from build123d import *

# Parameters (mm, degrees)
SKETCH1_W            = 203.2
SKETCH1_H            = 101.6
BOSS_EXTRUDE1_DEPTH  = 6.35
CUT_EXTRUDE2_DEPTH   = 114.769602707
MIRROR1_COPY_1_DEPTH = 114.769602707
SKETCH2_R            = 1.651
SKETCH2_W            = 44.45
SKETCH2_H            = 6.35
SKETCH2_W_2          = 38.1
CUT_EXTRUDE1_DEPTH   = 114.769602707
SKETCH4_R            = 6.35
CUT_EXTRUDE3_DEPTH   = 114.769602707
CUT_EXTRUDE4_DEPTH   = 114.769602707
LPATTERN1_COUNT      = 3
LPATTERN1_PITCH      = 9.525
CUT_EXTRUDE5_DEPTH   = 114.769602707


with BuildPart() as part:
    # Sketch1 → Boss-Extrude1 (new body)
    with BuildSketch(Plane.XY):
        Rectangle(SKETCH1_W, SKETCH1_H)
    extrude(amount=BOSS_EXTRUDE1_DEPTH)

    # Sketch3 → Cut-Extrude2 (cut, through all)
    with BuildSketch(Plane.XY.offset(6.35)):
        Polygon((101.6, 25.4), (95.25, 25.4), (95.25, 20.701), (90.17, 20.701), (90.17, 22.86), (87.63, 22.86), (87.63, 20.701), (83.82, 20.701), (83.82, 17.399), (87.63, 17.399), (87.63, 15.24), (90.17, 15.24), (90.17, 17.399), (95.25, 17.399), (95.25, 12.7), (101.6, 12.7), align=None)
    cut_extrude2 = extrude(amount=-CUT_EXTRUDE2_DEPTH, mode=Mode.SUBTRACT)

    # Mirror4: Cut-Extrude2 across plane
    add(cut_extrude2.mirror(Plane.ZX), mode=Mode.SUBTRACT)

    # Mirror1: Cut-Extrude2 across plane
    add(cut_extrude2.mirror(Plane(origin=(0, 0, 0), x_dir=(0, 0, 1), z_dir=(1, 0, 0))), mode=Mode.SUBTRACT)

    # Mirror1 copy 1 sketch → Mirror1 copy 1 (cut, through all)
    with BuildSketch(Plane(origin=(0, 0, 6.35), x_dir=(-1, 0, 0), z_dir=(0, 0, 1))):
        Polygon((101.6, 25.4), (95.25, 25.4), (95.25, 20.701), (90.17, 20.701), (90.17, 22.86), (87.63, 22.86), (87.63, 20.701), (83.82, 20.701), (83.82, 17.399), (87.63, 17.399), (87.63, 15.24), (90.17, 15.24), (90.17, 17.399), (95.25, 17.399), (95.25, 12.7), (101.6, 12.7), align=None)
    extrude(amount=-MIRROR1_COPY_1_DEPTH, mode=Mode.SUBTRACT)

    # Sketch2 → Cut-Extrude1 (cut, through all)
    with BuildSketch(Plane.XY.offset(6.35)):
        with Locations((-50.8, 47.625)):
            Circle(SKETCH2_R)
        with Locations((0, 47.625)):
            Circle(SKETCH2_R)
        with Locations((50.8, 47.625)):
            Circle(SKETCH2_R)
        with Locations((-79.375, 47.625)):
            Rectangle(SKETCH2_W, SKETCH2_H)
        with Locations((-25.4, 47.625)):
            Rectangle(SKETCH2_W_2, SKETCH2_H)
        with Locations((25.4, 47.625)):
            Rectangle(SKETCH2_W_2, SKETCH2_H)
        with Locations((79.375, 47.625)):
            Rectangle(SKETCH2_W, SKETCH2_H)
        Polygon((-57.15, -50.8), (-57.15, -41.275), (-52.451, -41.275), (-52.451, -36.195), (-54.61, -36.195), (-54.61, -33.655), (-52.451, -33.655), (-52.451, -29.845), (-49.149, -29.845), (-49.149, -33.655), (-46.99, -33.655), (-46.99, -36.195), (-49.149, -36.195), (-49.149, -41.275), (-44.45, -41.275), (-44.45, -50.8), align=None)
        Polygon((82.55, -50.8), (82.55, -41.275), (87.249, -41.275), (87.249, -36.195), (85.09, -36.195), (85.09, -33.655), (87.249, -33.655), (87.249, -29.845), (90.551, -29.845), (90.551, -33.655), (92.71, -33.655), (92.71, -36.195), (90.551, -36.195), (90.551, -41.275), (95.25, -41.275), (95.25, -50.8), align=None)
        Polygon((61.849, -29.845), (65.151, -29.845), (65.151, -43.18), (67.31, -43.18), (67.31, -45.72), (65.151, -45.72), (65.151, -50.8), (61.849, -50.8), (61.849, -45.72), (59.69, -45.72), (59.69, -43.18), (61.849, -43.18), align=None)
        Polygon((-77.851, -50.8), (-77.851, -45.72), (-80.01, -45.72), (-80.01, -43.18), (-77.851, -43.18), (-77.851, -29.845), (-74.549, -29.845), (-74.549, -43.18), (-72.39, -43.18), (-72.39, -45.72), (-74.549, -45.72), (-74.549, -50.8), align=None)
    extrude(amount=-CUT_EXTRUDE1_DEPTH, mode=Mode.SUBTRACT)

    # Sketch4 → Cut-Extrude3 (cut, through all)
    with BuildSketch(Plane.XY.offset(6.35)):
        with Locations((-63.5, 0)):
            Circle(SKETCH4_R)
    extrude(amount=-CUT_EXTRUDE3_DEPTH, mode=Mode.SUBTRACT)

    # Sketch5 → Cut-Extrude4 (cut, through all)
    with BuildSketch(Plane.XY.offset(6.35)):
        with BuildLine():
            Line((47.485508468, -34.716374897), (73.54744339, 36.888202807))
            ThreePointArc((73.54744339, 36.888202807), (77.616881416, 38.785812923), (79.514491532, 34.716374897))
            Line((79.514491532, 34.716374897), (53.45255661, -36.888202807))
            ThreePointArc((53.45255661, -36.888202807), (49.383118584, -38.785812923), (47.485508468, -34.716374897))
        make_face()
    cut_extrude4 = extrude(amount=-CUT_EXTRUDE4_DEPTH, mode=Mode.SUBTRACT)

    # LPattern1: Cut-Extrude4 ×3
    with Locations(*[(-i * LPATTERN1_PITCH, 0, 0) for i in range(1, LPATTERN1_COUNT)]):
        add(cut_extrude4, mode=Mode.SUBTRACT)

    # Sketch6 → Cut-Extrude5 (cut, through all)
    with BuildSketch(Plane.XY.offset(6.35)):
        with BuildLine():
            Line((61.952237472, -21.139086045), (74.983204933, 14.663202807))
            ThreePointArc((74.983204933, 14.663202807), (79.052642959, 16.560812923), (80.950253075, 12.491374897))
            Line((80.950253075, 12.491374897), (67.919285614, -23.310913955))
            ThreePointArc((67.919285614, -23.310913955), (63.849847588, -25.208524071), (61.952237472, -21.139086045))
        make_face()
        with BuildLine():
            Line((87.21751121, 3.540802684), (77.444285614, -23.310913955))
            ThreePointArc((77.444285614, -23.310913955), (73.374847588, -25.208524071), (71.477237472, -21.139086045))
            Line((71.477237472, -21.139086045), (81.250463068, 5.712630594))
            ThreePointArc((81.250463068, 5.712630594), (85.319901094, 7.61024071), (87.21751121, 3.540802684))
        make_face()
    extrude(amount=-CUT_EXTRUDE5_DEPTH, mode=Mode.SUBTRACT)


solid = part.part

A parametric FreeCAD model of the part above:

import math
import FreeCAD as App
import Part
import Sketcher

V = App.Vector
Q = App.Units.Quantity


def add_polygon(sketch, points):
    """Adds a closed chain of lines whose ends are joined by coincident constraints."""
    first, n = sketch.GeometryCount, len(points)
    for a, b in zip(points, points[1:] + points[:1]):
        sketch.addGeometry(Part.LineSegment(App.Vector(*a, 0), App.Vector(*b, 0)), False)
    for i in range(n):
        sketch.addConstraint(Sketcher.Constraint("Coincident", first + i, 2, first + (i + 1) % n, 1))

doc = App.newDocument("Part")
params = doc.addObject("Spreadsheet::Sheet", "Params")
for row, (alias, value) in enumerate([
    ("sketch1_width", "8 in"),
    ("sketch1_height", "4 in"),
    ("pad1_length", "0.25 in"),
    ("sketch2_width", "0.2 in"),
    ("sketch2_width2", "0.1 in"),
    ("sketch2_height", "0.5 in"),
    ("sketch2_width3", "0.25 in"),
    ("sketch2_width4", "0.15 in"),
    ("sketch3_width", "0.2 in"),
    ("sketch3_width2", "0.1 in"),
    ("sketch3_height", "0.5 in"),
    ("sketch3_width3", "0.25 in"),
    ("sketch3_width4", "0.15 in"),
    ("sketch4_diameter", "0.13 in"),
    ("sketch4_width", "1.5 in"),
    ("sketch4_width2", "0.5 in"),
    ("sketch4_height", "0.2 in"),
    ("sketch4_height2", "0.1 in"),
    ("sketch5_diameter", "0.5 in"),
    ("sketch6_length", "3 in"),
    ("sketch6_radius", "0.125 in"),
    ("linearpattern_pitch", "0.375 in"),
    ("sketch7_radius", "0.125 in"),
    ("sketch7_length", "1.5 in"),
    ("sketch7_length2", "1.125 in"),
], start=1):
    params.set(f"A{row}", alias)
    params.set(f"B{row}", "=" + value)
    params.setAlias(f"B{row}", alias)

body = doc.addObject("PartDesign::Body", "Body")

# Sketch on XY plane
sketch1 = body.newObject("Sketcher::SketchObject", "Sketch")
sketch1.AttachmentSupport = (doc.getObject("XY_Plane"), [""])
sketch1.MapMode = "FlatFace"
add_polygon(sketch1, [(-101.6, 50.8), (-101.6, -50.8), (101.6, -50.8), (101.6, 50.8)])  # lines 0-3
sketch1.addConstraint([
    Sketcher.Constraint("Vertical", 0),
    Sketcher.Constraint("Horizontal", 1),
    Sketcher.Constraint("Vertical", 2),
    Sketcher.Constraint("Horizontal", 3),
    Sketcher.Constraint("Symmetric", 0, 2, 2, 2, -1, 1),
    Sketcher.Constraint("DistanceX", 1, 1, 1, 2, Q("8 in")),
    Sketcher.Constraint("DistanceY", 0, 2, 0, 1, Q("4 in")),
])
sketch1.setExpression("Constraints[9]", "Params.sketch1_width")
sketch1.setExpression("Constraints[10]", "Params.sketch1_height")
pad1 = body.newObject("PartDesign::Pad", "Pad")
pad1.Profile = sketch1
pad1.setExpression("Length", "Params.pad1_length")

# Sketch on XY plane
sketch2 = body.newObject("Sketcher::SketchObject", "Sketch001")
sketch2.AttachmentSupport = (doc.getObject("XY_Plane"), [""])
sketch2.MapMode = "FlatFace"
sketch2.AttachmentOffset = App.Placement(V(0, 0, 0.25 * 25.4), App.Rotation())
add_polygon(sketch2, [(101.6, 25.4), (95.25, 25.4), (95.25, 20.701), (90.17, 20.701), (90.17, 22.86), (87.63, 22.86), (87.63, 20.701), (83.82, 20.701), (83.82, 17.399), (87.63, 17.399), (87.63, 15.24), (90.17, 15.24), (90.17, 17.399), (95.25, 17.399), (95.25, 12.7), (101.6, 12.7)])  # lines 0-15
sketch2.addConstraint([
    Sketcher.Constraint("Horizontal", 0),
    Sketcher.Constraint("Vertical", 1),
    Sketcher.Constraint("Horizontal", 2),
    Sketcher.Constraint("Vertical", 3),
    Sketcher.Constraint("Horizontal", 4),
    Sketcher.Constraint("Vertical", 5),
    Sketcher.Constraint("Horizontal", 6),
    Sketcher.Constraint("Vertical", 7),
    Sketcher.Constraint("Horizontal", 8),
    Sketcher.Constraint("Vertical", 9),
    Sketcher.Constraint("Horizontal", 10),
    Sketcher.Constraint("Vertical", 11),
    Sketcher.Constraint("Horizontal", 12),
    Sketcher.Constraint("Vertical", 13),
    Sketcher.Constraint("Horizontal", 14),
    Sketcher.Constraint("Vertical", 15),
    Sketcher.Constraint("Horizontal", 2, 2, 5, 2),
    Sketcher.Constraint("Horizontal", 8, 2, 11, 2),
    Sketcher.Constraint("Vertical", 5, 2, 8, 2),
    Sketcher.Constraint("Vertical", 3, 2, 10, 2),
    Sketcher.Constraint("Vertical", 1, 2, 12, 2),
    Sketcher.Constraint("Equal", 5, 9),
    Sketcher.Constraint("Equal", 1, 13),
    Sketcher.Constraint("DistanceX", 2, 2, 2, 1, Q("0.2 in")),
    Sketcher.Constraint("DistanceX", 4, 2, 4, 1, Q("0.1 in")),
    Sketcher.Constraint("DistanceY", 15, 1, 15, 2, Q("0.5 in")),
    Sketcher.Constraint("DistanceY", -1, 1, 0, 2, Q("1 in")),
    Sketcher.Constraint("DistanceX", -1, 1, 14, 2, Q("4 in")),
    Sketcher.Constraint("DistanceX", 0, 2, 0, 1, Q("0.25 in")),
    Sketcher.Constraint("DistanceX", 6, 2, 6, 1, Q("0.15 in")),
    Sketcher.Constraint("DistanceY", 7, 2, 7, 1, Q("0.13 in")),
    Sketcher.Constraint("DistanceY", -1, 1, 3, 2, Q("0.9 in")),
])
sketch2.setExpression("Constraints[39]", "Params.sketch2_width")
sketch2.setExpression("Constraints[40]", "Params.sketch2_width2")
sketch2.setExpression("Constraints[41]", "Params.sketch2_height")
sketch2.setExpression("Constraints[44]", "Params.sketch2_width3")
sketch2.setExpression("Constraints[45]", "Params.sketch2_width4")
pocket1 = body.newObject("PartDesign::Pocket", "Pocket")
pocket1.Profile = sketch2
pocket1.Type = "ThroughAll"
doc.recompute()

mirrored = body.newObject("PartDesign::Mirrored", "Mirrored")
mirrored.Originals = [pocket1]
mirrored.MirrorPlane = (doc.getObject("XZ_Plane"), [""])
body.Tip = mirrored
doc.recompute()

mirrored2 = body.newObject("PartDesign::Mirrored", "Mirrored001")
mirrored2.Originals = [pocket1]
mirrored2.MirrorPlane = (doc.getObject("YZ_Plane"), [""])
body.Tip = mirrored2

# Sketch on XY plane
sketch3 = body.newObject("Sketcher::SketchObject", "Sketch002")
sketch3.AttachmentSupport = (doc.getObject("XY_Plane"), [""])
sketch3.MapMode = "FlatFace"
sketch3.AttachmentOffset = App.Placement(V(0, 0, 0.25 * 25.4), App.Rotation())
add_polygon(sketch3, [(-101.6, -25.4), (-95.25, -25.4), (-95.25, -20.701), (-90.17, -20.701), (-90.17, -22.86), (-87.63, -22.86), (-87.63, -20.701), (-83.82, -20.701), (-83.82, -17.399), (-87.63, -17.399), (-87.63, -15.24), (-90.17, -15.24), (-90.17, -17.399), (-95.25, -17.399), (-95.25, -12.7), (-101.6, -12.7)])  # lines 0-15
sketch3.addConstraint([
    Sketcher.Constraint("Horizontal", 0),
    Sketcher.Constraint("Vertical", 1),
    Sketcher.Constraint("Horizontal", 2),
    Sketcher.Constraint("Vertical", 3),
    Sketcher.Constraint("Horizontal", 4),
    Sketcher.Constraint("Vertical", 5),
    Sketcher.Constraint("Horizontal", 6),
    Sketcher.Constraint("Vertical", 7),
    Sketcher.Constraint("Horizontal", 8),
    Sketcher.Constraint("Vertical", 9),
    Sketcher.Constraint("Horizontal", 10),
    Sketcher.Constraint("Vertical", 11),
    Sketcher.Constraint("Horizontal", 12),
    Sketcher.Constraint("Vertical", 13),
    Sketcher.Constraint("Horizontal", 14),
    Sketcher.Constraint("Vertical", 15),
    Sketcher.Constraint("Horizontal", 2, 2, 5, 2),
    Sketcher.Constraint("Horizontal", 8, 2, 11, 2),
    Sketcher.Constraint("Vertical", 5, 2, 8, 2),
    Sketcher.Constraint("Vertical", 3, 2, 10, 2),
    Sketcher.Constraint("Vertical", 1, 2, 12, 2),
    Sketcher.Constraint("Equal", 5, 9),
    Sketcher.Constraint("Equal", 1, 13),
    Sketcher.Constraint("DistanceX", 2, 1, 2, 2, Q("0.2 in")),
    Sketcher.Constraint("DistanceX", 4, 1, 4, 2, Q("0.1 in")),
    Sketcher.Constraint("DistanceY", 15, 2, 15, 1, Q("0.5 in")),
    Sketcher.Constraint("DistanceY", 0, 2, -1, 1, Q("1 in")),
    Sketcher.Constraint("DistanceX", 14, 2, -1, 1, Q("4 in")),
    Sketcher.Constraint("DistanceX", 0, 1, 0, 2, Q("0.25 in")),
    Sketcher.Constraint("DistanceX", 6, 1, 6, 2, Q("0.15 in")),
    Sketcher.Constraint("DistanceY", 7, 1, 7, 2, Q("0.13 in")),
    Sketcher.Constraint("DistanceY", 3, 2, -1, 1, Q("0.9 in")),
])
sketch3.setExpression("Constraints[39]", "Params.sketch3_width")
sketch3.setExpression("Constraints[40]", "Params.sketch3_width2")
sketch3.setExpression("Constraints[41]", "Params.sketch3_height")
sketch3.setExpression("Constraints[44]", "Params.sketch3_width3")
sketch3.setExpression("Constraints[45]", "Params.sketch3_width4")
pocket2 = body.newObject("PartDesign::Pocket", "Pocket001")
pocket2.Profile = sketch3
pocket2.Type = "ThroughAll"

# Sketch on XY plane
sketch4 = body.newObject("Sketcher::SketchObject", "Sketch003")
sketch4.AttachmentSupport = (doc.getObject("XY_Plane"), [""])
sketch4.MapMode = "FlatFace"
sketch4.AttachmentOffset = App.Placement(V(0, 0, 0.25 * 25.4), App.Rotation())
sketch4.addGeometry(Part.Circle(V(-50.8, 47.625, 0), V(0, 0, 1), 1.651), False)  # 0
sketch4.addGeometry(Part.Circle(V(0, 47.625, 0), V(0, 0, 1), 1.651), False)  # 1
sketch4.addGeometry(Part.Circle(V(50.8, 47.625, 0), V(0, 0, 1), 1.651), False)  # 2
add_polygon(sketch4, [(-101.6, 50.8), (-101.6, 44.45), (-57.15, 44.45), (-57.15, 50.8)])  # lines 3-6
add_polygon(sketch4, [(-44.45, 50.8), (-44.45, 44.45), (-6.35, 44.45), (-6.35, 50.8)])  # lines 7-10
add_polygon(sketch4, [(6.35, 50.8), (6.35, 44.45), (44.45, 44.45), (44.45, 50.8)])  # lines 11-14
add_polygon(sketch4, [(57.15, 50.8), (57.15, 44.45), (101.6, 44.45), (101.6, 50.8)])  # lines 15-18
add_polygon(sketch4, [(-57.15, -41.275), (-57.15, -50.8), (-44.45, -50.8), (-44.45, -41.275), (-49.149, -41.275), (-49.149, -36.195), (-46.99, -36.195), (-46.99, -33.655), (-49.149, -33.655), (-49.149, -29.845), (-52.451, -29.845), (-52.451, -33.655), (-54.61, -33.655), (-54.61, -36.195), (-52.451, -36.195), (-52.451, -41.275)])  # lines 19-34
add_polygon(sketch4, [(82.55, -41.275), (82.55, -50.8), (95.25, -50.8), (95.25, -41.275), (90.551, -41.275), (90.551, -36.195), (92.71, -36.195), (92.71, -33.655), (90.551, -33.655), (90.551, -29.845), (87.249, -29.845), (87.249, -33.655), (85.09, -33.655), (85.09, -36.195), (87.249, -36.195), (87.249, -41.275)])  # lines 35-50
add_polygon(sketch4, [(65.151, -29.845), (61.849, -29.845), (61.849, -43.18), (59.69, -43.18), (59.69, -45.72), (61.849, -45.72), (61.849, -50.8), (65.151, -50.8), (65.151, -45.72), (67.31, -45.72), (67.31, -43.18), (65.151, -43.18)])  # lines 51-62
add_polygon(sketch4, [(-77.851, -45.72), (-77.851, -50.8), (-74.549, -50.8), (-74.549, -45.72), (-72.39, -45.72), (-72.39, -43.18), (-74.549, -43.18), (-74.549, -29.845), (-77.851, -29.845), (-77.851, -43.18), (-80.01, -43.18), (-80.01, -45.72)])  # lines 63-74
sketch4.addConstraint([
    Sketcher.Constraint("Vertical", 3),
    Sketcher.Constraint("Horizontal", 4),
    Sketcher.Constraint("Vertical", 5),
    Sketcher.Constraint("Horizontal", 6),
    Sketcher.Constraint("Vertical", 7),
    Sketcher.Constraint("Horizontal", 8),
    Sketcher.Constraint("Vertical", 9),
    Sketcher.Constraint("Horizontal", 10),
    Sketcher.Constraint("Vertical", 11),
    Sketcher.Constraint("Horizontal", 12),
    Sketcher.Constraint("Vertical", 13),
    Sketcher.Constraint("Horizontal", 14),
    Sketcher.Constraint("Vertical", 15),
    Sketcher.Constraint("Horizontal", 16),
    Sketcher.Constraint("Vertical", 17),
    Sketcher.Constraint("Horizontal", 18),
    Sketcher.Constraint("Vertical", 19),
    Sketcher.Constraint("Horizontal", 20),
    Sketcher.Constraint("Vertical", 21),
    Sketcher.Constraint("Horizontal", 22),
    Sketcher.Constraint("Vertical", 23),
    Sketcher.Constraint("Horizontal", 24),
    Sketcher.Constraint("Vertical", 25),
    Sketcher.Constraint("Horizontal", 26),
    Sketcher.Constraint("Vertical", 27),
    Sketcher.Constraint("Horizontal", 28),
    Sketcher.Constraint("Vertical", 29),
    Sketcher.Constraint("Horizontal", 30),
    Sketcher.Constraint("Vertical", 31),
    Sketcher.Constraint("Horizontal", 32),
    Sketcher.Constraint("Vertical", 33),
    Sketcher.Constraint("Horizontal", 34),
    Sketcher.Constraint("Vertical", 35),
    Sketcher.Constraint("Horizontal", 36),
    Sketcher.Constraint("Vertical", 37),
    Sketcher.Constraint("Horizontal", 38),
    Sketcher.Constraint("Vertical", 39),
    Sketcher.Constraint("Horizontal", 40),
    Sketcher.Constraint("Vertical", 41),
    Sketcher.Constraint("Horizontal", 42),
    Sketcher.Constraint("Vertical", 43),
    Sketcher.Constraint("Horizontal", 44),
    Sketcher.Constraint("Vertical", 45),
    Sketcher.Constraint("Horizontal", 46),
    Sketcher.Constraint("Vertical", 47),
    Sketcher.Constraint("Horizontal", 48),
    Sketcher.Constraint("Vertical", 49),
    Sketcher.Constraint("Horizontal", 50),
    Sketcher.Constraint("Horizontal", 51),
    Sketcher.Constraint("Vertical", 52),
    Sketcher.Constraint("Horizontal", 53),
    Sketcher.Constraint("Vertical", 54),
    Sketcher.Constraint("Horizontal", 55),
    Sketcher.Constraint("Vertical", 56),
    Sketcher.Constraint("Horizontal", 57),
    Sketcher.Constraint("Vertical", 58),
    Sketcher.Constraint("Horizontal", 59),
    Sketcher.Constraint("Vertical", 60),
    Sketcher.Constraint("Horizontal", 61),
    Sketcher.Constraint("Vertical", 62),
    Sketcher.Constraint("Vertical", 63),
    Sketcher.Constraint("Horizontal", 64),
    Sketcher.Constraint("Vertical", 65),
    Sketcher.Constraint("Horizontal", 66),
    Sketcher.Constraint("Vertical", 67),
    Sketcher.Constraint("Horizontal", 68),
    Sketcher.Constraint("Vertical", 69),
    Sketcher.Constraint("Horizontal", 70),
    Sketcher.Constraint("Vertical", 71),
    Sketcher.Constraint("Horizontal", 72),
    Sketcher.Constraint("Vertical", 73),
    Sketcher.Constraint("Horizontal", 74),
    Sketcher.Constraint("Equal", 0, 1),
    Sketcher.Constraint("Equal", 1, 2),
    Sketcher.Constraint("Symmetric", 18, 2, 19, 2, -1, 1),
    Sketcher.Constraint("Symmetric", 13, 2, 20, 2, -1, 1),
    Sketcher.Constraint("Symmetric", 0, 3, 2, 3, -2),
    Sketcher.Constraint("Symmetric", 8, 2, 11, 2, -2),
    Sketcher.Constraint("Symmetric", 10, 2, 13, 2, -2),
    Sketcher.Constraint("Symmetric", 4, 2, 15, 2, -2),
    Sketcher.Constraint("Symmetric", 6, 2, 17, 2, -2),
    Sketcher.Constraint("PointOnObject", 1, 3, -2),
    Sketcher.Constraint("Horizontal", 0, 3, 1, 3),
    Sketcher.Constraint("Horizontal", 4, 2, 7, 2),
    Sketcher.Constraint("Horizontal", 26, 2, 29, 2),
    Sketcher.Constraint("Horizontal", 24, 2, 31, 2),
    Sketcher.Constraint("Horizontal", 22, 2, 33, 2),
    Sketcher.Constraint("Horizontal", 20, 2, 35, 2),
    Sketcher.Constraint("Horizontal", 34, 2, 37, 2),
    Sketcher.Constraint("Horizontal", 32, 2, 39, 2),
    Sketcher.Constraint("Horizontal", 30, 2, 41, 2),
    Sketcher.Constraint("Horizontal", 28, 2, 43, 2),
    Sketcher.Constraint("Horizontal", 42, 2, 45, 2),
    Sketcher.Constraint("Horizontal", 40, 2, 47, 2),
    Sketcher.Constraint("Horizontal", 38, 2, 49, 2),
    Sketcher.Constraint("Horizontal", 44, 2, 51, 2),
    Sketcher.Constraint("Horizontal", 36, 2, 56, 2),
    Sketcher.Constraint("Horizontal", 55, 2, 58, 2),
    Sketcher.Constraint("Horizontal", 53, 2, 60, 2),
    Sketcher.Constraint("Horizontal", 57, 2, 63, 2),
    Sketcher.Constraint("Horizontal", 59, 2, 65, 2),
    Sketcher.Constraint("Horizontal", 61, 2, 67, 2),
    Sketcher.Constraint("Horizontal", 62, 2, 69, 2),
    Sketcher.Constraint("Horizontal", 68, 2, 71, 2),
    Sketcher.Constraint("Horizontal", 66, 2, 73, 2),
    Sketcher.Constraint("Vertical", 23, 2, 26, 2),
    Sketcher.Constraint("Vertical", 29, 2, 32, 2),
    Sketcher.Constraint("Vertical", 39, 2, 42, 2),
    Sketcher.Constraint("Vertical", 45, 2, 48, 2),
    Sketcher.Constraint("Vertical", 52, 2, 55, 2),
    Sketcher.Constraint("Vertical", 58, 2, 61, 2),
    Sketcher.Constraint("Vertical", 65, 2, 68, 2),
    Sketcher.Constraint("Vertical", 63, 2, 70, 2),
    Sketcher.Constraint("Equal", 26, 30),
    Sketcher.Constraint("Equal", 22, 34),
    Sketcher.Constraint("Equal", 20, 36),
    Sketcher.Constraint("Equal", 34, 38),
    Sketcher.Constraint("Equal", 32, 40),
    Sketcher.Constraint("Equal", 28, 44),
    Sketcher.Constraint("Equal", 42, 46),
    Sketcher.Constraint("Equal", 44, 51),
    Sketcher.Constraint("Equal", 48, 53),
    Sketcher.Constraint("Equal", 55, 59),
    Sketcher.Constraint("Equal", 57, 64),
    Sketcher.Constraint("Equal", 61, 66),
    Sketcher.Constraint("Equal", 68, 72),
    Sketcher.Constraint("Equal", 47, 54),
    Sketcher.Constraint("Equal", 49, 56),
    Sketcher.Constraint("Diameter", 0, Q("0.13 in")),
    Sketcher.Constraint("DistanceX", 8, 1, 8, 2, Q("1.5 in")),
    Sketcher.Constraint("DistanceX", 20, 1, 20, 2, Q("0.5 in")),
    Sketcher.Constraint("DistanceY", 23, 1, 23, 2, Q("0.2 in")),
    Sketcher.Constraint("DistanceY", 25, 1, 25, 2, Q("0.1 in")),
    Sketcher.Constraint("DistanceX", 0, 3, -1, 1, Q("2 in")),
    Sketcher.Constraint("DistanceX", 3, 2, -1, 1, Q("4 in")),
    Sketcher.Constraint("DistanceY", -1, 1, 5, 2, Q("2 in")),
    Sketcher.Constraint("DistanceX", 4, 1, 4, 2, Q("1.75 in")),
    Sketcher.Constraint("DistanceX", 28, 2, 28, 1, Q("0.13 in")),
    Sketcher.Constraint("DistanceY", 3, 2, 3, 1, Q("0.25 in")),
    Sketcher.Constraint("DistanceY", 27, 1, 27, 2, Q("0.15 in")),
    Sketcher.Constraint("DistanceX", 24, 1, 24, 2, Q("0.085 in")),
    Sketcher.Constraint("DistanceY", 19, 2, 19, 1, Q("0.375 in")),
    Sketcher.Constraint("DistanceX", -1, 1, 35, 2, Q("3.25 in")),
    Sketcher.Constraint("DistanceX", -1, 1, 53, 2, Q("2.35 in")),
    Sketcher.Constraint("DistanceX", 66, 2, -1, 1, Q("2.85 in")),
    Sketcher.Constraint("DistanceY", -1, 1, 0, 3, Q("1.875 in")),
])
sketch4.setExpression("Constraints[200]", "Params.sketch4_diameter")
sketch4.setExpression("Constraints[201]", "Params.sketch4_width")
sketch4.setExpression("Constraints[202]", "Params.sketch4_width2")
sketch4.setExpression("Constraints[203]", "Params.sketch4_height")
sketch4.setExpression("Constraints[204]", "Params.sketch4_height2")
pocket3 = body.newObject("PartDesign::Pocket", "Pocket002")
pocket3.Profile = sketch4
pocket3.Type = "ThroughAll"

# Sketch on XY plane
sketch5 = body.newObject("Sketcher::SketchObject", "Sketch004")
sketch5.AttachmentSupport = (doc.getObject("XY_Plane"), [""])
sketch5.MapMode = "FlatFace"
sketch5.AttachmentOffset = App.Placement(V(0, 0, 0.25 * 25.4), App.Rotation())
sketch5.addGeometry(Part.Circle(V(-63.5, 0, 0), V(0, 0, 1), 6.35), False)
sketch5.addConstraint([
    Sketcher.Constraint("PointOnObject", 0, 3, -1),
    Sketcher.Constraint("Diameter", 0, Q("0.5 in")),
    Sketcher.Constraint("DistanceX", 0, 3, -1, 1, Q("2.5 in")),
])
sketch5.setExpression("Constraints[1]", "Params.sketch5_diameter")
pocket4 = body.newObject("PartDesign::Pocket", "Pocket003")
pocket4.Profile = sketch5
pocket4.Type = "ThroughAll"

# Sketch on XY plane
sketch6 = body.newObject("Sketcher::SketchObject", "Sketch005")
sketch6.AttachmentSupport = (doc.getObject("XY_Plane"), [""])
sketch6.MapMode = "FlatFace"
sketch6.AttachmentOffset = App.Placement(V(0, 0, 0.25 * 25.4), App.Rotation())
sketch6.addGeometry([
    Part.LineSegment(V(73.547443, 36.888203, 0), V(47.485508, -34.716375, 0)),
    Part.ArcOfCircle(Part.Circle(V(50.469033, -35.802289, 0), V(0, 0, 1), 3.175), math.radians(160), math.radians(340)),
    Part.LineSegment(V(53.452557, -36.888203, 0), V(79.514492, 34.716375, 0)),
    Part.ArcOfCircle(Part.Circle(V(76.530967, 35.802289, 0), V(0, 0, 1), 3.175), math.radians(-20), math.radians(160)),
], False)
sketch6.addConstraint([
    Sketcher.Constraint("Tangent", 0, 2, 1, 1),
    Sketcher.Constraint("Tangent", 1, 2, 2, 1),
    Sketcher.Constraint("Tangent", 2, 2, 3, 1),
    Sketcher.Constraint("Tangent", 3, 2, 0, 1),
    Sketcher.Constraint("Equal", 1, 3),
    Sketcher.Constraint("Distance", 0, Q("3 in")),
    Sketcher.Constraint("Angle", 0, Q("-110 deg")),
    Sketcher.Constraint("Radius", 1, Q("0.125 in")),
    Sketcher.Constraint("DistanceY", 1, 3, -1, 1, 35.802289),
    Sketcher.Constraint("DistanceX", -1, 1, 0, 2, 47.485508),
])
sketch6.setExpression("Constraints[5]", "Params.sketch6_length")
sketch6.setExpression("Constraints[7]", "Params.sketch6_radius")
pocket5 = body.newObject("PartDesign::Pocket", "Pocket004")
pocket5.Profile = sketch6
pocket5.Type = "ThroughAll"
doc.recompute()

linearpattern = body.newObject("PartDesign::LinearPattern", "LinearPattern")
linearpattern.Originals = [pocket5]
linearpattern.Direction = (doc.getObject("X_Axis"), [""])
linearpattern.Mode = "offset"
linearpattern.setExpression("Offset", "Params.linearpattern_pitch")
linearpattern.Occurrences = 3
linearpattern.Reversed = True
body.Tip = linearpattern

# Sketch on XY plane
sketch7 = body.newObject("Sketcher::SketchObject", "Sketch006")
sketch7.AttachmentSupport = (doc.getObject("XY_Plane"), [""])
sketch7.MapMode = "FlatFace"
sketch7.AttachmentOffset = App.Placement(V(0, 0, 0.25 * 25.4), App.Rotation())
sketch7.addGeometry([
    Part.LineSegment(V(74.983205, 14.663203, 0), V(61.952237, -21.139086, 0)),  # 0
    Part.ArcOfCircle(Part.Circle(V(64.935762, -22.225, 0), V(0, 0, 1), 3.175), math.radians(160), math.radians(340)),  # 1
    Part.LineSegment(V(67.919286, -23.310914, 0), V(80.950253, 12.491375, 0)),  # 2
    Part.ArcOfCircle(Part.Circle(V(77.966729, 13.577289, 0), V(0, 0, 1), 3.175), math.radians(-20), math.radians(160)),  # 3
    Part.LineSegment(V(77.444286, -23.310914, 0), V(87.217511, 3.540803, 0)),  # 4
    Part.ArcOfCircle(Part.Circle(V(84.233987, 4.626717, 0), V(0, 0, 1), 3.175), math.radians(-20), math.radians(160)),  # 5
    Part.LineSegment(V(81.250463, 5.712631, 0), V(71.477237, -21.139086, 0)),  # 6
    Part.ArcOfCircle(Part.Circle(V(74.460762, -22.225, 0), V(0, 0, 1), 3.175), math.radians(160), math.radians(340)),  # 7
], False)
sketch7.addConstraint([
    Sketcher.Constraint("Tangent", 0, 2, 1, 1),
    Sketcher.Constraint("Tangent", 1, 2, 2, 1),
    Sketcher.Constraint("Tangent", 2, 2, 3, 1),
    Sketcher.Constraint("Tangent", 3, 2, 0, 1),
    Sketcher.Constraint("Tangent", 4, 2, 5, 1),
    Sketcher.Constraint("Tangent", 5, 2, 6, 1),
    Sketcher.Constraint("Tangent", 6, 2, 7, 1),
    Sketcher.Constraint("Tangent", 7, 2, 4, 1),
    Sketcher.Constraint("Equal", 1, 3),
    Sketcher.Constraint("Equal", 3, 5),
    Sketcher.Constraint("Equal", 5, 7),
    Sketcher.Constraint("Parallel", 2, 4),
    Sketcher.Constraint("Horizontal", 1, 3, 7, 3),
    Sketcher.Constraint("Angle", 0, Q("-110 deg")),
    Sketcher.Constraint("Radius", 1, Q("0.125 in")),
    Sketcher.Constraint("Distance", 0, Q("1.5 in")),
    Sketcher.Constraint("Distance", 4, Q("1.125 in")),
    Sketcher.Constraint("DistanceY", 1, 3, -1, 1, Q("0.875 in")),
    Sketcher.Constraint("DistanceX", 1, 3, 7, 3, Q("0.375 in")),
    Sketcher.Constraint("DistanceX", -1, 1, 1, 3, 64.935762),
])
sketch7.setExpression("Constraints[14]", "Params.sketch7_radius")
sketch7.setExpression("Constraints[15]", "Params.sketch7_length")
sketch7.setExpression("Constraints[16]", "Params.sketch7_length2")
pocket6 = body.newObject("PartDesign::Pocket", "Pocket005")
pocket6.Profile = sketch7
pocket6.Type = "ThroughAll"

doc.recompute()
